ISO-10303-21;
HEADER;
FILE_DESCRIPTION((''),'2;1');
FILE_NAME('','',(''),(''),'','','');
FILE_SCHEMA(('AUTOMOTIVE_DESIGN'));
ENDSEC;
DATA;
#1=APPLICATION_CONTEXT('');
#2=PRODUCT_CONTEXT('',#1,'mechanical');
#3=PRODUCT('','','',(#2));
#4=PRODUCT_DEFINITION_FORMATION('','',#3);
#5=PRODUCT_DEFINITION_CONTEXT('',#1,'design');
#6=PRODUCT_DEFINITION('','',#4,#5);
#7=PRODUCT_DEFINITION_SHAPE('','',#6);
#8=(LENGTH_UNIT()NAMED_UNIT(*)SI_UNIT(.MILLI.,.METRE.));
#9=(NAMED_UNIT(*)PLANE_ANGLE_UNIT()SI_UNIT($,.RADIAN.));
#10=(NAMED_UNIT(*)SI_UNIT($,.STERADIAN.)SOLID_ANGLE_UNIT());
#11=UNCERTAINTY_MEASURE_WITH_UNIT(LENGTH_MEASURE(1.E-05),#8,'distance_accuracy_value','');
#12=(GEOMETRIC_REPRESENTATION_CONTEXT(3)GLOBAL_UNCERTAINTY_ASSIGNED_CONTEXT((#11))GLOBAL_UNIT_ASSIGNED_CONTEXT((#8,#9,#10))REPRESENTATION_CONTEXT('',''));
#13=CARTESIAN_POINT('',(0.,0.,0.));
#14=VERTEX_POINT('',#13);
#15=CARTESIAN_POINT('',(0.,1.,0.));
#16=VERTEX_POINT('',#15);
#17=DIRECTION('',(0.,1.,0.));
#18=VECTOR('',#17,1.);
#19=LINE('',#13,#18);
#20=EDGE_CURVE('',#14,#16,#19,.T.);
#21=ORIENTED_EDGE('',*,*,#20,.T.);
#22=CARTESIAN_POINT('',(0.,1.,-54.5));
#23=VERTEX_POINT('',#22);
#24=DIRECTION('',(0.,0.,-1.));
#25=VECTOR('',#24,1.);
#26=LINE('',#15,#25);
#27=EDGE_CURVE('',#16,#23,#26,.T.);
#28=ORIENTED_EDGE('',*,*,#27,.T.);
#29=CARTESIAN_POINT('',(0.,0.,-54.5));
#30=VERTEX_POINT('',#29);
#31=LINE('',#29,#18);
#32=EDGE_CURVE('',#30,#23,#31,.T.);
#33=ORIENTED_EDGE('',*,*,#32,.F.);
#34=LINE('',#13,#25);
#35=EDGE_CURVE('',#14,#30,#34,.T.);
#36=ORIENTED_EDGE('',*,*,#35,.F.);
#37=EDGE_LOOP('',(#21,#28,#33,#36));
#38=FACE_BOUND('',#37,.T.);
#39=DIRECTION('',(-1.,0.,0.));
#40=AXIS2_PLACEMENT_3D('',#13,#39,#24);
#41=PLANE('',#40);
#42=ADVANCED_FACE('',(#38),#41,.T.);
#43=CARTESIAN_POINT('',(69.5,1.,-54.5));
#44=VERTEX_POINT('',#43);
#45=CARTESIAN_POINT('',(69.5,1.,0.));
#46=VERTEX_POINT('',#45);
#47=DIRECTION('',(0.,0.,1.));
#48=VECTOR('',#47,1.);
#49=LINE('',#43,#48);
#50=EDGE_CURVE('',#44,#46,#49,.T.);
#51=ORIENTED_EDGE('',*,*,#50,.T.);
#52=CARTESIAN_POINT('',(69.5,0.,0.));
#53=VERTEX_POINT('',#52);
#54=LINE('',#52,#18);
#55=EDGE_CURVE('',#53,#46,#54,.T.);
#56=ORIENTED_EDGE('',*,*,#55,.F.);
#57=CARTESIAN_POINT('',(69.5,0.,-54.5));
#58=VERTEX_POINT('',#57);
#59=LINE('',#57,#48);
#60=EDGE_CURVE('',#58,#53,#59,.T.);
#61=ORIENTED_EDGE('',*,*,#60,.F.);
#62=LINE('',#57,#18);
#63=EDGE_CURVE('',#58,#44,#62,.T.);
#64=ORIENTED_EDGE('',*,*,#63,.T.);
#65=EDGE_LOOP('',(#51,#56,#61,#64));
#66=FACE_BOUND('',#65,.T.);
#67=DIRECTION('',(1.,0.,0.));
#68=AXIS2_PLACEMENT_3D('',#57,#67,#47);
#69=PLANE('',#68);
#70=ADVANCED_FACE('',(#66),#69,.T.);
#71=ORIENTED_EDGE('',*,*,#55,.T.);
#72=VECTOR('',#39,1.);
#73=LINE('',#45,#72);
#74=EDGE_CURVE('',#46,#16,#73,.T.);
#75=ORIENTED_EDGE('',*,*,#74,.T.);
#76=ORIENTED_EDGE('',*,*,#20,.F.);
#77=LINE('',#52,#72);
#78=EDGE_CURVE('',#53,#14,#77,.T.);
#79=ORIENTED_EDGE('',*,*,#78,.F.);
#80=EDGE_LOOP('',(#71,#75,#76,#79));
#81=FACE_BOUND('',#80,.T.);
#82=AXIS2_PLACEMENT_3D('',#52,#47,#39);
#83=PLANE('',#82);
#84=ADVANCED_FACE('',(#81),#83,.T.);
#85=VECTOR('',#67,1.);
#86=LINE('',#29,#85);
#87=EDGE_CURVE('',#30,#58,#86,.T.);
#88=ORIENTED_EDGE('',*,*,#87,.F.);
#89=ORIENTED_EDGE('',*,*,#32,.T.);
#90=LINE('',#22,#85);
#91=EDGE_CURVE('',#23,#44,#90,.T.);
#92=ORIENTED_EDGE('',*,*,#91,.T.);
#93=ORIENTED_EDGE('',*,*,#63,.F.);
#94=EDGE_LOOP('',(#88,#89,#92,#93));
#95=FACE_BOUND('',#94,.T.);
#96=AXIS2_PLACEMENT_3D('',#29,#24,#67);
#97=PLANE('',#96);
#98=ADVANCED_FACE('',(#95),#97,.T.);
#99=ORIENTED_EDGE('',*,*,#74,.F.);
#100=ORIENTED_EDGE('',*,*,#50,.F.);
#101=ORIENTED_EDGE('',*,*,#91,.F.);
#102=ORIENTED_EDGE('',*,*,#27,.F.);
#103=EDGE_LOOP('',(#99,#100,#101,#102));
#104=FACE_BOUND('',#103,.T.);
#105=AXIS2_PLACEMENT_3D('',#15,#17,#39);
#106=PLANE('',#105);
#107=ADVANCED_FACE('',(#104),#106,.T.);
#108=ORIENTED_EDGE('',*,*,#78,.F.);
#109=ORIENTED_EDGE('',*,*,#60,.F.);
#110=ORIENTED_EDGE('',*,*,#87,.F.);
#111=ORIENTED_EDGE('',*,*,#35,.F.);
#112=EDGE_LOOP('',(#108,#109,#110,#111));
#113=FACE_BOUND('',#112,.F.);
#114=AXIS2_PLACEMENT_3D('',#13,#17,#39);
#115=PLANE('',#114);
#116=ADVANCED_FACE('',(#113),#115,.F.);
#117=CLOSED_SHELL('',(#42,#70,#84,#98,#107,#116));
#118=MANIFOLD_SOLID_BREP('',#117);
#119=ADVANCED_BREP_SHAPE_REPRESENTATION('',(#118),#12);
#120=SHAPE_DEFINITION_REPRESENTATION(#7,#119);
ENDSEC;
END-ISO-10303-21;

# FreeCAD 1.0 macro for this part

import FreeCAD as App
import Part
import Sketcher

doc = App.newDocument("Part")
body = doc.addObject("PartDesign::Body", "Body")

sketch1 = body.newObject("Sketcher::SketchObject", "Sketch")
sketch1.AttachmentSupport = (doc.getObject("XZ_Plane"), [""])
sketch1.MapMode = "FlatFace"
sketch1.addGeometry([
    Part.LineSegment(App.Vector(0, -54, 0), App.Vector(0, 0, 0)),
    Part.LineSegment(App.Vector(0, 0, 0), App.Vector(70, 0, 0)),
    Part.LineSegment(App.Vector(70, 0, 0), App.Vector(70, -54, 0)),
    Part.LineSegment(App.Vector(70, -54, 0), App.Vector(0, -54, 0)),
], False)
sketch1.addConstraint([
    Sketcher.Constraint("Coincident", 0, 2, 1, 1),
    Sketcher.Constraint("Coincident", 1, 2, 2, 1),
    Sketcher.Constraint("Coincident", 2, 2, 3, 1),
    Sketcher.Constraint("Coincident", 3, 2, 0, 1),
    Sketcher.Constraint("Vertical", 0),
    Sketcher.Constraint("Horizontal", 1),
    Sketcher.Constraint("Vertical", 2),
    Sketcher.Constraint("Horizontal", 3),
    Sketcher.Constraint("Coincident", 0, 2, -1, 1),
    Sketcher.Constraint("DistanceX", 1, 1, 1, 2, 69.5),
    Sketcher.Constraint("DistanceY", 0, 1, 0, 2, 54.5),
])
pad1 = body.newObject("PartDesign::Pad", "Pad")
pad1.Profile = sketch1
pad1.Length = 1
pad1.Reversed = True

doc.recompute()
